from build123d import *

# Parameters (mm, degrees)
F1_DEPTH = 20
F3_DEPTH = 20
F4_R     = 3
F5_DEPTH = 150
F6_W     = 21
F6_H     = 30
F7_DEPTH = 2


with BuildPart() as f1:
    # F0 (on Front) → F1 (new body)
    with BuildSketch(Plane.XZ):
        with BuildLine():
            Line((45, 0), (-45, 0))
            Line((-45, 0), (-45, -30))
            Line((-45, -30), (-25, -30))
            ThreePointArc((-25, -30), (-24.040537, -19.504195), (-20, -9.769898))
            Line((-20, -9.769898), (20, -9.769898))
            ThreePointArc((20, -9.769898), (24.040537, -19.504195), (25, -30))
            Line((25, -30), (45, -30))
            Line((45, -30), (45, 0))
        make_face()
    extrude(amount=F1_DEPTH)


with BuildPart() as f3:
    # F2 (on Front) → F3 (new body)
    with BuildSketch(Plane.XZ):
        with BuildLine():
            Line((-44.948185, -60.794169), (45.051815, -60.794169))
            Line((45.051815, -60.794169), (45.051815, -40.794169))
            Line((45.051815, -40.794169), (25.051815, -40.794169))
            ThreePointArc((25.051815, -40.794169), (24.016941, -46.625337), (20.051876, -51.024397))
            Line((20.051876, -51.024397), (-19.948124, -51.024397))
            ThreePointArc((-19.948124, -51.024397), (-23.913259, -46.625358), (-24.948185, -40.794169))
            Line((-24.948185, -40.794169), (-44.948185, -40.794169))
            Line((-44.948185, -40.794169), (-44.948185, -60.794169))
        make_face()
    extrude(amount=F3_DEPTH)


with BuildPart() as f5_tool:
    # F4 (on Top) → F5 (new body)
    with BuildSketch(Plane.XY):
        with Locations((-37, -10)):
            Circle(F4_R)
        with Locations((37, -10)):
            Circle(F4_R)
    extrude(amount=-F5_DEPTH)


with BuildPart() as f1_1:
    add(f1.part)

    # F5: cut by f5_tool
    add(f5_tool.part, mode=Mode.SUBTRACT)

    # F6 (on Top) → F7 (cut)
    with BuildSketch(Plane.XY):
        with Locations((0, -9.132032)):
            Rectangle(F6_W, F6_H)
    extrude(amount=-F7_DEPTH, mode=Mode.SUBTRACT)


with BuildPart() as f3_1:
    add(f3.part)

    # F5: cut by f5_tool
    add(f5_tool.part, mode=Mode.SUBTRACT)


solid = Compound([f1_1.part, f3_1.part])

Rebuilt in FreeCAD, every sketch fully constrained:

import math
import FreeCAD as App
import Part
import Sketcher

V = App.Vector

doc = App.newDocument("Part")
params = doc.addObject("Spreadsheet::Sheet", "Params")
for row, (alias, value) in enumerate([
    ("sketch1_width", "90 mm"),
    ("sketch1_width2", "20 mm"),
    ("sketch1_width3", "40 mm"),
    ("sketch1_height", "30 mm"),
    ("pad1_length", "20 mm"),
    ("sketch2_width", "90 mm"),
    ("sketch2_width2", "20 mm"),
    ("sketch2_width3", "40 mm"),
    ("pad2_length", "20 mm"),
    ("sketch3_diameter", "6 mm"),
    ("pad3_length", "150 mm"),
    ("sketch4_width", "21 mm"),
    ("sketch4_height", "30 mm"),
    ("pocket1_length", "2 mm"),
], start=1):
    params.set(f"A{row}", alias)
    params.set(f"B{row}", "=" + value)
    params.setAlias(f"B{row}", alias)

body = doc.addObject("PartDesign::Body", "Body")

# Sketch on XZ plane
sketch1 = body.newObject("Sketcher::SketchObject", "Sketch")
sketch1.AttachmentSupport = (doc.getObject("XZ_Plane"), [""])
sketch1.MapMode = "FlatFace"
sketch1.addGeometry([
    Part.LineSegment(V(45, 0, 0), V(-45, 0, 0)),  # 0
    Part.LineSegment(V(-45, 0, 0), V(-45, -30, 0)),  # 1
    Part.LineSegment(V(-45, -30, 0), V(-25, -30, 0)),  # 2
    Part.ArcOfCircle(Part.Circle(V(9.937065, -27.901978, 0), V(0, 0, 1), 35.000003), math.radians(148.79783), math.radians(183.436568)),  # 3
    Part.LineSegment(V(-20, -9.769898, 0), V(20, -9.769898, 0)),  # 4
    Part.ArcOfCircle(Part.Circle(V(-9.937065, -27.901978, 0), V(0, 0, 1), 35.000003), math.radians(-3.436568), math.radians(31.20217)),  # 5
    Part.LineSegment(V(25, -30, 0), V(45, -30, 0)),  # 6
    Part.LineSegment(V(45, -30, 0), V(45, 0, 0)),  # 7
], False)
sketch1.addConstraint([
    Sketcher.Constraint("Coincident", 0, 2, 1, 1),
    Sketcher.Constraint("Coincident", 1, 2, 2, 1),
    Sketcher.Constraint("Coincident", 2, 2, 3, 2),
    Sketcher.Constraint("Coincident", 3, 1, 4, 1),
    Sketcher.Constraint("Coincident", 4, 2, 5, 2),
    Sketcher.Constraint("Coincident", 5, 1, 6, 1),
    Sketcher.Constraint("Coincident", 6, 2, 7, 1),
    Sketcher.Constraint("Coincident", 7, 2, 0, 1),
    Sketcher.Constraint("Horizontal", 0),
    Sketcher.Constraint("Vertical", 1),
    Sketcher.Constraint("Horizontal", 2),
    Sketcher.Constraint("Horizontal", 4),
    Sketcher.Constraint("Horizontal", 6),
    Sketcher.Constraint("Vertical", 7),
    Sketcher.Constraint("Equal", 3, 5),
    Sketcher.Constraint("Symmetric", 0, 2, 7, 2, -1, 1),
    Sketcher.Constraint("Symmetric", 3, 3, 5, 3, -2),
    Sketcher.Constraint("Horizontal", 2, 2, 5, 1),
    Sketcher.Constraint("DistanceX", 0, 2, 0, 1, 90.0),
    Sketcher.Constraint("DistanceX", 2, 1, 2, 2, 20.0),
    Sketcher.Constraint("DistanceX", 4, 1, 4, 2, 40.0),
    Sketcher.Constraint("DistanceY", 1, 2, 1, 1, 30.0),
    Sketcher.Constraint("Radius", 3, 35.000003),
    Sketcher.Constraint("DistanceY", 3, 3, -1, 1, 27.901978),
])
sketch1.setExpression("Constraints[18]", "Params.sketch1_width")
sketch1.setExpression("Constraints[19]", "Params.sketch1_width2")
sketch1.setExpression("Constraints[20]", "Params.sketch1_width3")
sketch1.setExpression("Constraints[21]", "Params.sketch1_height")
pad1 = body.newObject("PartDesign::Pad", "Pad")
pad1.Profile = sketch1
pad1.setExpression("Length", "Params.pad1_length")
body2 = doc.addObject("PartDesign::Body", "Body001")

# Sketch on XZ plane
sketch2 = body2.newObject("Sketcher::SketchObject", "Sketch001")
sketch2.AttachmentSupport = (doc.getObject("XZ_Plane001"), [""])
sketch2.MapMode = "FlatFace"
sketch2.addGeometry([
    Part.LineSegment(V(-44.948185, -60.794169, 0), V(45.051815, -60.794169, 0)),  # 0
    Part.LineSegment(V(45.051815, -60.794169, 0), V(45.051815, -40.794169, 0)),  # 1
    Part.LineSegment(V(45.051815, -40.794169, 0), V(25.051815, -40.794169, 0)),  # 2
    Part.ArcOfCircle(Part.Circle(V(14.355151, -41.903217, 0), V(0, 0, 1), 10.754004), math.radians(-58.012746), math.radians(5.919369)),  # 3
    Part.LineSegment(V(20.051876, -51.024397, 0), V(-19.948124, -51.024397, 0)),  # 4
    Part.ArcOfCircle(Part.Circle(V(-14.251517, -41.903147, 0), V(0, 0, 1), 10.754001), math.radians(174.081003), math.radians(238.013477)),  # 5
    Part.LineSegment(V(-24.948185, -40.794169, 0), V(-44.948185, -40.794169, 0)),  # 6
    Part.LineSegment(V(-44.948185, -40.794169, 0), V(-44.948185, -60.794169, 0)),  # 7
], False)
sketch2.addConstraint([
    Sketcher.Constraint("Coincident", 0, 2, 1, 1),
    Sketcher.Constraint("Coincident", 1, 2, 2, 1),
    Sketcher.Constraint("Coincident", 2, 2, 3, 2),
    Sketcher.Constraint("Coincident", 3, 1, 4, 1),
    Sketcher.Constraint("Coincident", 4, 2, 5, 2),
    Sketcher.Constraint("Coincident", 5, 1, 6, 1),
    Sketcher.Constraint("Coincident", 6, 2, 7, 1),
    Sketcher.Constraint("Coincident", 7, 2, 0, 1),
    Sketcher.Constraint("Horizontal", 0),
    Sketcher.Constraint("Vertical", 1),
    Sketcher.Constraint("Horizontal", 2),
    Sketcher.Constraint("Horizontal", 4),
    Sketcher.Constraint("Horizontal", 6),
    Sketcher.Constraint("Vertical", 7),
    Sketcher.Constraint("Horizontal", 2, 2, 5, 1),
    Sketcher.Constraint("Equal", 2, 6),
    Sketcher.Constraint("Equal", 6, 1),
    Sketcher.Constraint("DistanceX", 0, 1, 0, 2, 90.0),
    Sketcher.Constraint("DistanceX", 2, 2, 2, 1, 20.0),
    Sketcher.Constraint("DistanceX", 4, 2, 4, 1, 40.0),
    Sketcher.Constraint("Radius", 5, 10.754001),
    Sketcher.Constraint("Radius", 3, 10.754004),
    Sketcher.Constraint("DistanceX", -1, 1, 3, 3, 14.355151),
    Sketcher.Constraint("DistanceY", 0, 2, -1, 1, 60.794169),
    Sketcher.Constraint("DistanceX", 5, 3, 0, 2, 59.303332),
    Sketcher.Constraint("DistanceY", 3, 1, 3, 3, 9.12118),
])
sketch2.setExpression("Constraints[17]", "Params.sketch2_width")
sketch2.setExpression("Constraints[18]", "Params.sketch2_width2")
sketch2.setExpression("Constraints[19]", "Params.sketch2_width3")
pad2 = body2.newObject("PartDesign::Pad", "Pad001")
pad2.Profile = sketch2
pad2.setExpression("Length", "Params.pad2_length")
body3 = doc.addObject("PartDesign::Body", "Body002")
body3.AllowCompound = True

# Sketch on XY plane
sketch3 = body3.newObject("Sketcher::SketchObject", "Sketch002")
sketch3.AttachmentSupport = (doc.getObject("XY_Plane002"), [""])
sketch3.MapMode = "FlatFace"
sketch3.addGeometry([
    Part.Circle(V(-37, -10, 0), V(0, 0, 1), 3),
    Part.Circle(V(37, -10, 0), V(0, 0, 1), 3),
], False)
sketch3.addConstraint([
    Sketcher.Constraint("Equal", 0, 1),
    Sketcher.Constraint("Symmetric", 0, 3, 1, 3, -2),
    Sketcher.Constraint("Diameter", 0, 6.0),
    Sketcher.Constraint("DistanceX", 0, 3, -1, 1, 37.0),
    Sketcher.Constraint("DistanceY", 0, 3, -1, 1, 10.0),
])
sketch3.setExpression("Constraints[2]", "Params.sketch3_diameter")
pad3 = body3.newObject("PartDesign::Pad", "Pad002")
pad3.Profile = sketch3
pad3.setExpression("Length", "Params.pad3_length")
pad3.Reversed = True
doc.recompute()

body4 = doc.addObject("PartDesign::Body", "Body003")
body4.BaseFeature = body3
boolean = body.newObject("PartDesign::Boolean", "Boolean")
boolean.Type = "Cut"
boolean.addObjects([body4])
doc.recompute()

# Sketch on XY plane
sketch4 = body.newObject("Sketcher::SketchObject", "Sketch003")
sketch4.AttachmentSupport = (doc.getObject("XY_Plane"), [""])
sketch4.MapMode = "FlatFace"
sketch4.addGeometry([
    Part.LineSegment(V(-10.5, 5.867968, 0), V(-10.5, -24.132032, 0)),
    Part.LineSegment(V(-10.5, -24.132032, 0), V(10.5, -24.132032, 0)),
    Part.LineSegment(V(10.5, -24.132032, 0), V(10.5, 5.867968, 0)),
    Part.LineSegment(V(10.5, 5.867968, 0), V(-10.5, 5.867968, 0)),
], False)
sketch4.addConstraint([
    Sketcher.Constraint("Coincident", 0, 2, 1, 1),
    Sketcher.Constraint("Coincident", 1, 2, 2, 1),
    Sketcher.Constraint("Coincident", 2, 2, 3, 1),
    Sketcher.Constraint("Coincident", 3, 2, 0, 1),
    Sketcher.Constraint("Vertical", 0),
    Sketcher.Constraint("Horizontal", 1),
    Sketcher.Constraint("Vertical", 2),
    Sketcher.Constraint("Horizontal", 3),
    Sketcher.Constraint("DistanceX", 1, 1, 1, 2, 21.0),
    Sketcher.Constraint("DistanceY", 0, 2, 0, 1, 30.0),
    Sketcher.Constraint("DistanceX", 0, 2, -1, 1, 10.5),
    Sketcher.Constraint("DistanceY", 0, 2, -1, 1, 24.132032),
])
sketch4.setExpression("Constraints[8]", "Params.sketch4_width")
sketch4.setExpression("Constraints[9]", "Params.sketch4_height")
pocket1 = body.newObject("PartDesign::Pocket", "Pocket")
pocket1.Profile = sketch4
pocket1.setExpression("Length", "Params.pocket1_length")
doc.recompute()

boolean2 = body2.newObject("PartDesign::Boolean", "Boolean001")
boolean2.Type = "Cut"
boolean2.addObjects([body3])

doc.recompute()
